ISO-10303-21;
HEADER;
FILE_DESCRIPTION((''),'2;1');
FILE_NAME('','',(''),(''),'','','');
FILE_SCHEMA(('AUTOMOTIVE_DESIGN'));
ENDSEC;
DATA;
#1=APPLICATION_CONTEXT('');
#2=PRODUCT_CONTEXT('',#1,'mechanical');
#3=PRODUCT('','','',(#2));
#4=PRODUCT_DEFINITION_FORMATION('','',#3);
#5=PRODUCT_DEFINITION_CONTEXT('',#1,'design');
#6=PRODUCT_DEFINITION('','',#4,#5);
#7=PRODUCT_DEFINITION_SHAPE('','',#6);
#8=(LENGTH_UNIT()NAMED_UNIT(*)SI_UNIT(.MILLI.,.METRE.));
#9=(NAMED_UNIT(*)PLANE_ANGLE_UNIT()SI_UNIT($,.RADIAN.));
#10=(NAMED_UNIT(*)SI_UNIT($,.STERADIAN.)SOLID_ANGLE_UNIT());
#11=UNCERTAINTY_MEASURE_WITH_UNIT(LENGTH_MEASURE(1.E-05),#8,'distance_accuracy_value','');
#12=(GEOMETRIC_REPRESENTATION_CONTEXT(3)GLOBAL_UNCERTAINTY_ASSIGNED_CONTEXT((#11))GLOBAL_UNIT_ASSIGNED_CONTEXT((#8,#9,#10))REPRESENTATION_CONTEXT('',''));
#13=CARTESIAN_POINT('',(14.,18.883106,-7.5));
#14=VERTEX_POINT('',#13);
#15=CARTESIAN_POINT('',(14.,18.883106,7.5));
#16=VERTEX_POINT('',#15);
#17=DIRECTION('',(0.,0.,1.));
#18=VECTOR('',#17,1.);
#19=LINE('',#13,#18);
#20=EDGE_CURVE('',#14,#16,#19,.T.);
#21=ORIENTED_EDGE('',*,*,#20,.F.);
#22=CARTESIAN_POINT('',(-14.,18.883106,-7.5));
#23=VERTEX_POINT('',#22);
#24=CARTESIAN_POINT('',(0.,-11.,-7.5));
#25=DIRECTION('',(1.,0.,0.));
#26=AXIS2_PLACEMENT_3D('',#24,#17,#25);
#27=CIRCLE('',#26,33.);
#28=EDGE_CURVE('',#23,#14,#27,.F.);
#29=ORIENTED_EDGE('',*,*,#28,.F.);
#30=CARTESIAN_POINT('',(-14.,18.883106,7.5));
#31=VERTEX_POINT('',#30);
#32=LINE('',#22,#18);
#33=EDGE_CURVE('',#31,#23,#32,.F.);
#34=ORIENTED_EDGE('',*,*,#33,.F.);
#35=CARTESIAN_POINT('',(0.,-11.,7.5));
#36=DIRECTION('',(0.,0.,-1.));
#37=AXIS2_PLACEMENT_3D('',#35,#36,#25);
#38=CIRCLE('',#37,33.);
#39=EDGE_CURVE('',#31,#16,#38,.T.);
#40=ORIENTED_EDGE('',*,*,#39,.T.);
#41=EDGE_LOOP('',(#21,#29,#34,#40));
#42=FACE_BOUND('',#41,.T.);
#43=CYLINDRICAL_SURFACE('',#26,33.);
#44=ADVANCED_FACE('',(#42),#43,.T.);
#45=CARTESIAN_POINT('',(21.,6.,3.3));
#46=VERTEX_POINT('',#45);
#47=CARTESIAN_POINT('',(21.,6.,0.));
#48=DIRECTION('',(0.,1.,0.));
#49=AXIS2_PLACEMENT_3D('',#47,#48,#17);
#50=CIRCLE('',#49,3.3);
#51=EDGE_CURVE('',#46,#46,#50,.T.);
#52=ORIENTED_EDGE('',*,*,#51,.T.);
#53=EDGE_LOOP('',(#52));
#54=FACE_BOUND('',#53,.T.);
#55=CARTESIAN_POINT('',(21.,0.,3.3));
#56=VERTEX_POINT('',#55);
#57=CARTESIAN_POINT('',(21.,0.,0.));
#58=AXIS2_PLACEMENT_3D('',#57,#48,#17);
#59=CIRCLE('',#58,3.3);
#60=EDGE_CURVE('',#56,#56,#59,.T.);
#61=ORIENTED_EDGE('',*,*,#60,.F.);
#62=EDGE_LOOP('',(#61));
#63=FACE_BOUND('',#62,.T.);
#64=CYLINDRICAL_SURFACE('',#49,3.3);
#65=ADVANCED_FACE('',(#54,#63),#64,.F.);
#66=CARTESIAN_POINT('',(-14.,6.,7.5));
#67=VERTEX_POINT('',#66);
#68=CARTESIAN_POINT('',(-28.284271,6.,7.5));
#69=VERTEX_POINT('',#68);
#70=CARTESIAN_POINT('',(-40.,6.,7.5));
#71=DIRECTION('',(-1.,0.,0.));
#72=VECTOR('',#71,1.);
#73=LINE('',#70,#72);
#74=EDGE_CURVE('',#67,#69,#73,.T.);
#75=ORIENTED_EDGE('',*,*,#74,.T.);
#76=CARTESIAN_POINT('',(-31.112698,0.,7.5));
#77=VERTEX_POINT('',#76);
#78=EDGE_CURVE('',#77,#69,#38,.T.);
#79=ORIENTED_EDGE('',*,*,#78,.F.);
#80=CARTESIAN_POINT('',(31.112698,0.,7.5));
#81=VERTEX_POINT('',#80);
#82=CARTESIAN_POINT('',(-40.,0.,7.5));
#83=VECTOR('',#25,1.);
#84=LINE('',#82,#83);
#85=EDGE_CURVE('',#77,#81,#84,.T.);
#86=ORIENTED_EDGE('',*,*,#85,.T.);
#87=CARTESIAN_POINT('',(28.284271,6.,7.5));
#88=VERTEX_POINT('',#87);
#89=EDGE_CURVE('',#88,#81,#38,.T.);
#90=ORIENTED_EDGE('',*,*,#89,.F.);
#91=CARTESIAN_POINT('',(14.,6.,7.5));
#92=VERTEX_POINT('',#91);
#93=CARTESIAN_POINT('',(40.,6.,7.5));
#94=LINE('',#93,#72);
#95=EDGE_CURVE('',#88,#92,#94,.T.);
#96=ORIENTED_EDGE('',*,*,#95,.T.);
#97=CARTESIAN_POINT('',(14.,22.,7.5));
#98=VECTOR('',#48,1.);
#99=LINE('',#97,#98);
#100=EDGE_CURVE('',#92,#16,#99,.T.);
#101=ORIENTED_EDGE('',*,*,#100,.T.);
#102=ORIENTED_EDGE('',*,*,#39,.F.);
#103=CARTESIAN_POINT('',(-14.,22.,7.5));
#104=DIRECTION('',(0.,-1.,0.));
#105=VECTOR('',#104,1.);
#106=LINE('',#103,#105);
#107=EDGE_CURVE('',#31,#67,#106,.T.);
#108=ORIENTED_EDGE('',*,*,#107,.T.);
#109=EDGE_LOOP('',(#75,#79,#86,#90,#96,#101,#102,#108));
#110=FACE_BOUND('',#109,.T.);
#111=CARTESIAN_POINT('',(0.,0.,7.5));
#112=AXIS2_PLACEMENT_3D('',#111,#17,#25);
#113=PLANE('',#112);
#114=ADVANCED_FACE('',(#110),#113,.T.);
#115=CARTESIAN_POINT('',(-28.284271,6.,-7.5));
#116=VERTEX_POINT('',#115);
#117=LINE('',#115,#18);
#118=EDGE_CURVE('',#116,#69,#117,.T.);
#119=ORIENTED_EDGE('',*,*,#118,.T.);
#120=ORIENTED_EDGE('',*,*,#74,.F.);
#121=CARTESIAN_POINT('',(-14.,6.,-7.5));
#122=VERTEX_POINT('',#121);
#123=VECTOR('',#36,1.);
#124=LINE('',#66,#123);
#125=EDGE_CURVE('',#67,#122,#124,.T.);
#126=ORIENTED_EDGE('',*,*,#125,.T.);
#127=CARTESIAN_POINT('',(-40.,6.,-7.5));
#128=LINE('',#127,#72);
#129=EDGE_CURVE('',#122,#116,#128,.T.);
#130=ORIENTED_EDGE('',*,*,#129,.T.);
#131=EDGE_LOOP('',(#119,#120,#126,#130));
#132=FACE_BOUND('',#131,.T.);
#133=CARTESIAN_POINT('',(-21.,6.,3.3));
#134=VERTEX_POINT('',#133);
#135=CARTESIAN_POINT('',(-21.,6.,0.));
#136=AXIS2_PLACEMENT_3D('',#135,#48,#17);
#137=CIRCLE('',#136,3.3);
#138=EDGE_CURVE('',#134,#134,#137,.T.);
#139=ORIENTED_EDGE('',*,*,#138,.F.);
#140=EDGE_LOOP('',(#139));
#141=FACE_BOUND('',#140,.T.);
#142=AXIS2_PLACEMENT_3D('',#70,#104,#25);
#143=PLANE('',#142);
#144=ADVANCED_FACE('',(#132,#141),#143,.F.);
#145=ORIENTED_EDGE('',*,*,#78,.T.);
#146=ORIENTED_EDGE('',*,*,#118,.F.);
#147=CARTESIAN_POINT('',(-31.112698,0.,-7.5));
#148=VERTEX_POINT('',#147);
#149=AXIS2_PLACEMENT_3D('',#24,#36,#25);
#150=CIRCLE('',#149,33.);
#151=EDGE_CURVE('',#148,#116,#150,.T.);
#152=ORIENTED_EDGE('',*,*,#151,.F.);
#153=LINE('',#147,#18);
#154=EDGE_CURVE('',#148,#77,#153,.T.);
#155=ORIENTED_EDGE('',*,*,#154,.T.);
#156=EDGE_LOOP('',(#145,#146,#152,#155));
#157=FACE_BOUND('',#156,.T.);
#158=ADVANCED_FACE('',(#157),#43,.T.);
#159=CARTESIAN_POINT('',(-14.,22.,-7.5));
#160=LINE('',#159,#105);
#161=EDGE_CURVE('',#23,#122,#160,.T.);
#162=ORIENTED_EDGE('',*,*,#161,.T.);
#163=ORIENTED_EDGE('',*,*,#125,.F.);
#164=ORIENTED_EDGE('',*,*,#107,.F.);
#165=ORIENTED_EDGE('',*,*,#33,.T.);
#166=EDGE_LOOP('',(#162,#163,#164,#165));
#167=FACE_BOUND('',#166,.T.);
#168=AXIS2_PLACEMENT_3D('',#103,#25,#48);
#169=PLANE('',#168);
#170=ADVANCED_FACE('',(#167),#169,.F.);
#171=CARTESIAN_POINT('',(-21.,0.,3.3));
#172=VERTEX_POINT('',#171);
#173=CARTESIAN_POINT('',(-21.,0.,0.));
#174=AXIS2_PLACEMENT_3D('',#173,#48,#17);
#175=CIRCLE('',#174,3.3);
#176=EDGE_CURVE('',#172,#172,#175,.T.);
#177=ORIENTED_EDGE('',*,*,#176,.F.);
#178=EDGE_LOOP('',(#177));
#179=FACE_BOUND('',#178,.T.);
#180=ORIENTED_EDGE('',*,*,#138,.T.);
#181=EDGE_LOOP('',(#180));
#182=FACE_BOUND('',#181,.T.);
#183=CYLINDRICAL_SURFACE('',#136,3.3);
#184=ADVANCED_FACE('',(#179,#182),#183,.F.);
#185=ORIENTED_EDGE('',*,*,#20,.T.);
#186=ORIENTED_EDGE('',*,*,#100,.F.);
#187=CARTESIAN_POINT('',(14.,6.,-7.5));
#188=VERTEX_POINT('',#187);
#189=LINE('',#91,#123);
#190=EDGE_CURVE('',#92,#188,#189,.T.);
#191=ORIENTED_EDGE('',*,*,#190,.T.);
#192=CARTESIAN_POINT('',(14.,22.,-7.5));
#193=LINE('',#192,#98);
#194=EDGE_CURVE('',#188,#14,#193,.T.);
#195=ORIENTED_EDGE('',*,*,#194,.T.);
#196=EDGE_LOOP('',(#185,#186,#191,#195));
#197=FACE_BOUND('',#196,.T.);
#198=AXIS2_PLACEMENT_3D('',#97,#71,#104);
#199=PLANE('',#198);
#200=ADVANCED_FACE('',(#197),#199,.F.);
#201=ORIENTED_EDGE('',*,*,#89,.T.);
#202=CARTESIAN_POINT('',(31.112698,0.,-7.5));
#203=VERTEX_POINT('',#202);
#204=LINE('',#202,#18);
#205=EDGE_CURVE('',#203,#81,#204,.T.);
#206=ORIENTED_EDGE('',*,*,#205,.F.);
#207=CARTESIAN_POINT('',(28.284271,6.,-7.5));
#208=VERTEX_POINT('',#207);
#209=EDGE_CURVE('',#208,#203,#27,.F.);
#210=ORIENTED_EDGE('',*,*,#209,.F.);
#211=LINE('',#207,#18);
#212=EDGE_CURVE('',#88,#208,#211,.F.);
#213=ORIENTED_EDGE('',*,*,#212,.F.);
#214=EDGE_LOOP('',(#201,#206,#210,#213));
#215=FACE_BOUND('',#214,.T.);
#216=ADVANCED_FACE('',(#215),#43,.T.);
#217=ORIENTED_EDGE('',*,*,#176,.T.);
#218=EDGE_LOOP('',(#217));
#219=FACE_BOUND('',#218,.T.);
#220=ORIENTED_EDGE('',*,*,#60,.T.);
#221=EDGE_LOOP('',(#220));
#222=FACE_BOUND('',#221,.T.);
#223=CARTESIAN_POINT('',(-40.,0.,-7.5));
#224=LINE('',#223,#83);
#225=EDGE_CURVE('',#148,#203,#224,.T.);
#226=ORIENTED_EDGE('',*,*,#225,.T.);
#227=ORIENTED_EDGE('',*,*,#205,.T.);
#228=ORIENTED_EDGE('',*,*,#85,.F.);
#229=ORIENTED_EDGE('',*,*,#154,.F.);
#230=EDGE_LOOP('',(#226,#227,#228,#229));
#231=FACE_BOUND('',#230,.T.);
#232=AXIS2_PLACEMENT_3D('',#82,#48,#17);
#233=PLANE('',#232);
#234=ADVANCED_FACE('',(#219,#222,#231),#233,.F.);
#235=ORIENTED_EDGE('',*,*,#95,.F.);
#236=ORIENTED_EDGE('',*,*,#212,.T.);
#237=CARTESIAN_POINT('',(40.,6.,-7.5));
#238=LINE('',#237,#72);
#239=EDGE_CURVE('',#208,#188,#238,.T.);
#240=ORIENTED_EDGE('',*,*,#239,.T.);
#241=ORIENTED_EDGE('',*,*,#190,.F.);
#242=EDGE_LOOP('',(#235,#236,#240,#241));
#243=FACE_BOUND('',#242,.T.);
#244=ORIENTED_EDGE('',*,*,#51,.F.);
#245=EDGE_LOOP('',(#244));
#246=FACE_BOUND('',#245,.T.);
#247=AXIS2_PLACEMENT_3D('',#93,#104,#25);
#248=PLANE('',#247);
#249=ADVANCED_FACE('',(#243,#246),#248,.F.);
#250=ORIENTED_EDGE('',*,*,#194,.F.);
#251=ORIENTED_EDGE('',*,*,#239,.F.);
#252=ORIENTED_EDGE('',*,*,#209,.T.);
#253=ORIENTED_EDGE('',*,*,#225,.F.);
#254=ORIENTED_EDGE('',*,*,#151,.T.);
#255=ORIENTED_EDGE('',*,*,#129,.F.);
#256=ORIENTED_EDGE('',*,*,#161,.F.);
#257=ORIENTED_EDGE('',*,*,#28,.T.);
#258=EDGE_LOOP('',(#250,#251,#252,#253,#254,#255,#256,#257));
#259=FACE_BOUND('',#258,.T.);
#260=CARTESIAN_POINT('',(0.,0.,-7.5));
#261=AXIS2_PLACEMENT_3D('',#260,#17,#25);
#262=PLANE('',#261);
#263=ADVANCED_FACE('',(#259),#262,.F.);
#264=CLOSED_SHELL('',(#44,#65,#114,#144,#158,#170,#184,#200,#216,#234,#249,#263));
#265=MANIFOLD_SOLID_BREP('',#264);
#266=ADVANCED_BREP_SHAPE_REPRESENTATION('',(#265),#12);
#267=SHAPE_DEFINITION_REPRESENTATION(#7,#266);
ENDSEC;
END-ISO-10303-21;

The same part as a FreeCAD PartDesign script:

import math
import FreeCAD as App
import Part
import Sketcher
from FreeCAD import Vector

doc = App.newDocument("Part")
body = doc.addObject("PartDesign::Body", "Body")

sketch1 = body.newObject("Sketcher::SketchObject", "Sketch")
sketch1.AttachmentSupport = (doc.getObject("XY_Plane"), [""])
sketch1.MapMode = "FlatFace"
sketch1.addGeometry([
    Part.LineSegment(Vector(14, 22, 0), Vector(-14, 22, 0)),
    Part.LineSegment(Vector(-14, 22, 0), Vector(-14, 6, 0)),
    Part.LineSegment(Vector(-14, 6, 0), Vector(-40, 6, 0)),
    Part.LineSegment(Vector(-40, 6, 0), Vector(-40, 0, 0)),
    Part.LineSegment(Vector(-40, 0, 0), Vector(40, 0, 0)),
    Part.LineSegment(Vector(40, 0, 0), Vector(40, 6, 0)),
    Part.LineSegment(Vector(40, 6, 0), Vector(14, 6, 0)),
    Part.LineSegment(Vector(14, 6, 0), Vector(14, 22, 0)),
], False)
sketch1.addConstraint([
    Sketcher.Constraint("Coincident", 0, 2, 1, 1),
    Sketcher.Constraint("Coincident", 1, 2, 2, 1),
    Sketcher.Constraint("Coincident", 2, 2, 3, 1),
    Sketcher.Constraint("Coincident", 3, 2, 4, 1),
    Sketcher.Constraint("Coincident", 4, 2, 5, 1),
    Sketcher.Constraint("Coincident", 5, 2, 6, 1),
    Sketcher.Constraint("Coincident", 6, 2, 7, 1),
    Sketcher.Constraint("Coincident", 7, 2, 0, 1),
    Sketcher.Constraint("Horizontal", 0),
    Sketcher.Constraint("Vertical", 1),
    Sketcher.Constraint("Horizontal", 2),
    Sketcher.Constraint("Vertical", 3),
    Sketcher.Constraint("Horizontal", 4),
    Sketcher.Constraint("Vertical", 5),
    Sketcher.Constraint("Horizontal", 6),
    Sketcher.Constraint("Vertical", 7),
    Sketcher.Constraint("Symmetric", 3, 2, 4, 2, -1, 1),
    Sketcher.Constraint("Symmetric", 1, 2, 6, 2, -2),
    Sketcher.Constraint("DistanceX", 0, 2, 0, 1, 28.0),
    Sketcher.Constraint("DistanceX", 2, 2, 2, 1, 26.0),
    Sketcher.Constraint("DistanceY", 1, 2, 1, 1, 16.0),
    Sketcher.Constraint("DistanceY", 3, 2, 3, 1, 6.0),
])
pad1 = body.newObject("PartDesign::Pad", "Pad")
pad1.Profile = sketch1
pad1.Length = 15
pad1.Midplane = True

sketch2 = body.newObject("Sketcher::SketchObject", "Sketch001")
sketch2.AttachmentSupport = (doc.getObject("XY_Plane"), [""])
sketch2.MapMode = "FlatFace"
sketch2.addGeometry([
    Part.LineSegment(Vector(-40, 0, 0), Vector(-31, 0, 0)),
    Part.ArcOfCircle(Part.Circle(Vector(0, -11, 0), Vector(0, 0, 1), 33), math.radians(19), math.radians(161)),
    Part.LineSegment(Vector(31, 0, 0), Vector(40, 0, 0)),
    Part.LineSegment(Vector(40, 0, 0), Vector(40, 32, 0)),
    Part.LineSegment(Vector(40, 32, 0), Vector(-40, 32, 0)),
    Part.LineSegment(Vector(-40, 32, 0), Vector(-40, 0, 0)),
], False)
sketch2.addConstraint([
    Sketcher.Constraint("Coincident", 0, 2, 1, 2),
    Sketcher.Constraint("Coincident", 1, 1, 2, 1),
    Sketcher.Constraint("Coincident", 2, 2, 3, 1),
    Sketcher.Constraint("Coincident", 3, 2, 4, 1),
    Sketcher.Constraint("Coincident", 4, 2, 5, 1),
    Sketcher.Constraint("Coincident", 5, 2, 0, 1),
    Sketcher.Constraint("Horizontal", 0),
    Sketcher.Constraint("Horizontal", 2),
    Sketcher.Constraint("Vertical", 3),
    Sketcher.Constraint("Horizontal", 4),
    Sketcher.Constraint("Vertical", 5),
    Sketcher.Constraint("Symmetric", 0, 2, 1, 1, -1, 1),
    Sketcher.Constraint("Symmetric", 2, 2, 5, 2, -2),
    Sketcher.Constraint("Radius", 1, 33.0),
    Sketcher.Constraint("DistanceX", 4, 2, 4, 1, 80.0),
    Sketcher.Constraint("DistanceY", 3, 1, 3, 2, 32.0),
    Sketcher.Constraint("DistanceY", 1, 3, -1, 1, 11.0),
])
pocket1 = body.newObject("PartDesign::Pocket", "Pocket")
pocket1.Profile = sketch2
pocket1.Type = "ThroughAll"
pocket1.Midplane = True

sketch3 = body.newObject("Sketcher::SketchObject", "Sketch002")
sketch3.AttachmentSupport = (doc.getObject("XZ_Plane"), [""])
sketch3.MapMode = "FlatFace"
sketch3.AttachmentOffset = App.Placement(Vector(0, 0, -6), App.Rotation())
sketch3.addGeometry([
    Part.Circle(Vector(-21, 0, 0), Vector(0, 0, 1), 3.3),
    Part.Circle(Vector(21, 0, 0), Vector(0, 0, 1), 3.3),
], False)
sketch3.addConstraint([
    Sketcher.Constraint("Equal", 0, 1),
    Sketcher.Constraint("Symmetric", 0, 3, 1, 3, -1, 1),
    Sketcher.Constraint("PointOnObject", 0, 3, -1),
    Sketcher.Constraint("Diameter", 0, 6.6),
    Sketcher.Constraint("DistanceX", 0, 3, -1, 1, 21.0),
])
doc.recompute()
hole = body.newObject("PartDesign::Hole", "Hole")
hole.Profile = sketch3
hole.ThreadType = "None"
hole.Diameter = 6.6
hole.DepthType = "ThroughAll"
hole.Reversed = True

doc.recompute()
